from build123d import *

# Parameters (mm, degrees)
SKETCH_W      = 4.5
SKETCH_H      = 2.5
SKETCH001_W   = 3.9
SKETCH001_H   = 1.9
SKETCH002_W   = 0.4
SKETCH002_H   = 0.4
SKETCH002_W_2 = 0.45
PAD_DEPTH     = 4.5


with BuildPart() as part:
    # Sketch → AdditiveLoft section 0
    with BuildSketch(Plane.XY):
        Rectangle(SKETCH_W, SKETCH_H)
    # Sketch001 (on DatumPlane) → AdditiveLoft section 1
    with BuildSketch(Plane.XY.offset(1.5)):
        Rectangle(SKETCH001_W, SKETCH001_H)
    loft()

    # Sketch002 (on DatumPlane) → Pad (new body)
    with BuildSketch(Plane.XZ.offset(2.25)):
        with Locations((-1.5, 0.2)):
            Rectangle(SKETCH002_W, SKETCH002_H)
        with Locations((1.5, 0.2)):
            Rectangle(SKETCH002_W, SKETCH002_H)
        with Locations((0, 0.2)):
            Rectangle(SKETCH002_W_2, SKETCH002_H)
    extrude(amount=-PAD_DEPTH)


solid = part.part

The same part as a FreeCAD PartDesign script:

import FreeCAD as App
import Part
import Sketcher

V = App.Vector


def add_polygon(sketch, points):
    """Adds a closed chain of lines whose ends are joined by coincident constraints."""
    first, n = sketch.GeometryCount, len(points)
    for a, b in zip(points, points[1:] + points[:1]):
        sketch.addGeometry(Part.LineSegment(App.Vector(*a, 0), App.Vector(*b, 0)), False)
    for i in range(n):
        sketch.addConstraint(Sketcher.Constraint("Coincident", first + i, 2, first + (i + 1) % n, 1))

doc = App.newDocument("Part")
body = doc.addObject("PartDesign::Body", "Body")

sketch1 = doc.addObject("Sketcher::SketchObject", "Sketch")
body.addObject(sketch1)
sketch1.AttachmentSupport = (doc.XY_Plane, [""])
sketch1.MapMode = "FlatFace"
add_polygon(sketch1, [(-2.2, 1.2), (-2.2, -1.2), (2.2, -1.2), (2.2, 1.2)])
sketch1.addConstraint([
    Sketcher.Constraint("Vertical", 0),
    Sketcher.Constraint("Horizontal", 1),
    Sketcher.Constraint("Vertical", 2),
    Sketcher.Constraint("Horizontal", 3),
    Sketcher.Constraint("Symmetric", 0, 2, 2, 2, -1, 1),
    Sketcher.Constraint("DistanceX", 1, 1, 1, 2, 4.5),
    Sketcher.Constraint("DistanceY", 0, 2, 0, 1, 2.5),
])

sketch2 = doc.addObject("Sketcher::SketchObject", "Sketch001")
body.addObject(sketch2)
sketch2.AttachmentSupport = (doc.XY_Plane, [""])
sketch2.MapMode = "FlatFace"
sketch2.AttachmentOffset = App.Placement(V(0, 0, 1.5), App.Rotation())
add_polygon(sketch2, [(-1.9, 0.9), (-1.9, -0.9), (1.9, -0.9), (1.9, 0.9)])
sketch2.addConstraint([
    Sketcher.Constraint("Vertical", 0),
    Sketcher.Constraint("Horizontal", 1),
    Sketcher.Constraint("Vertical", 2),
    Sketcher.Constraint("Horizontal", 3),
    Sketcher.Constraint("Symmetric", 0, 2, 2, 2, -1, 1),
    Sketcher.Constraint("DistanceX", 1, 1, 1, 2, 3.9),
    Sketcher.Constraint("DistanceY", 0, 2, 0, 1, 1.9),
])

additiveloft = doc.addObject("PartDesign::AdditiveLoft", "AdditiveLoft")
body.addObject(additiveloft)
additiveloft.Profile = sketch1
additiveloft.Sections = [sketch2]

sketch3 = doc.addObject("Sketcher::SketchObject", "Sketch002")
body.addObject(sketch3)
sketch3.AttachmentSupport = (doc.XZ_Plane, [""])
sketch3.MapMode = "FlatFace"
sketch3.AttachmentOffset = App.Placement(V(0, 0, 2.25), App.Rotation())
add_polygon(sketch3, [(-1.7, 0.4), (-1.7, 0), (-1.3, 0), (-1.3, 0.4)])
add_polygon(sketch3, [(1.3, 0.4), (1.3, 0), (1.7, 0), (1.7, 0.4)])
add_polygon(sketch3, [(-0.23, 0.4), (-0.23, 0), (0.23, 0), (0.23, 0.4)])
sketch3.addConstraint([
    Sketcher.Constraint("Vertical", 0),
    Sketcher.Constraint("Horizontal", 1),
    Sketcher.Constraint("Vertical", 2),
    Sketcher.Constraint("Horizontal", 3),
    Sketcher.Constraint("Vertical", 4),
    Sketcher.Constraint("Horizontal", 5),
    Sketcher.Constraint("Vertical", 6),
    Sketcher.Constraint("Horizontal", 7),
    Sketcher.Constraint("Vertical", 8),
    Sketcher.Constraint("Horizontal", 9),
    Sketcher.Constraint("Vertical", 10),
    Sketcher.Constraint("Horizontal", 11),
    Sketcher.Constraint("Symmetric", 1, 2, 4, 2, -1, 1),
    Sketcher.Constraint("Symmetric", 8, 2, 9, 2, -1, 1),
    Sketcher.Constraint("Symmetric", 0, 2, 5, 2, -2),
    Sketcher.Constraint("Horizontal", 3, 2, 6, 2),
    Sketcher.Constraint("Horizontal", 7, 2, 10, 2),
    Sketcher.Constraint("Equal", 7, 0),
    Sketcher.Constraint("DistanceX", 1, 1, 1, 2, 0.4),
    Sketcher.Constraint("DistanceX", 0, 2, 4, 2, 3.0),
    Sketcher.Constraint("DistanceX", 9, 1, 9, 2, 0.45),
])
pad1 = doc.addObject("PartDesign::Pad", "Pad")
body.addObject(pad1)
pad1.Profile = sketch3
pad1.Length = 4.5
pad1.Reversed = True

doc.recompute()
